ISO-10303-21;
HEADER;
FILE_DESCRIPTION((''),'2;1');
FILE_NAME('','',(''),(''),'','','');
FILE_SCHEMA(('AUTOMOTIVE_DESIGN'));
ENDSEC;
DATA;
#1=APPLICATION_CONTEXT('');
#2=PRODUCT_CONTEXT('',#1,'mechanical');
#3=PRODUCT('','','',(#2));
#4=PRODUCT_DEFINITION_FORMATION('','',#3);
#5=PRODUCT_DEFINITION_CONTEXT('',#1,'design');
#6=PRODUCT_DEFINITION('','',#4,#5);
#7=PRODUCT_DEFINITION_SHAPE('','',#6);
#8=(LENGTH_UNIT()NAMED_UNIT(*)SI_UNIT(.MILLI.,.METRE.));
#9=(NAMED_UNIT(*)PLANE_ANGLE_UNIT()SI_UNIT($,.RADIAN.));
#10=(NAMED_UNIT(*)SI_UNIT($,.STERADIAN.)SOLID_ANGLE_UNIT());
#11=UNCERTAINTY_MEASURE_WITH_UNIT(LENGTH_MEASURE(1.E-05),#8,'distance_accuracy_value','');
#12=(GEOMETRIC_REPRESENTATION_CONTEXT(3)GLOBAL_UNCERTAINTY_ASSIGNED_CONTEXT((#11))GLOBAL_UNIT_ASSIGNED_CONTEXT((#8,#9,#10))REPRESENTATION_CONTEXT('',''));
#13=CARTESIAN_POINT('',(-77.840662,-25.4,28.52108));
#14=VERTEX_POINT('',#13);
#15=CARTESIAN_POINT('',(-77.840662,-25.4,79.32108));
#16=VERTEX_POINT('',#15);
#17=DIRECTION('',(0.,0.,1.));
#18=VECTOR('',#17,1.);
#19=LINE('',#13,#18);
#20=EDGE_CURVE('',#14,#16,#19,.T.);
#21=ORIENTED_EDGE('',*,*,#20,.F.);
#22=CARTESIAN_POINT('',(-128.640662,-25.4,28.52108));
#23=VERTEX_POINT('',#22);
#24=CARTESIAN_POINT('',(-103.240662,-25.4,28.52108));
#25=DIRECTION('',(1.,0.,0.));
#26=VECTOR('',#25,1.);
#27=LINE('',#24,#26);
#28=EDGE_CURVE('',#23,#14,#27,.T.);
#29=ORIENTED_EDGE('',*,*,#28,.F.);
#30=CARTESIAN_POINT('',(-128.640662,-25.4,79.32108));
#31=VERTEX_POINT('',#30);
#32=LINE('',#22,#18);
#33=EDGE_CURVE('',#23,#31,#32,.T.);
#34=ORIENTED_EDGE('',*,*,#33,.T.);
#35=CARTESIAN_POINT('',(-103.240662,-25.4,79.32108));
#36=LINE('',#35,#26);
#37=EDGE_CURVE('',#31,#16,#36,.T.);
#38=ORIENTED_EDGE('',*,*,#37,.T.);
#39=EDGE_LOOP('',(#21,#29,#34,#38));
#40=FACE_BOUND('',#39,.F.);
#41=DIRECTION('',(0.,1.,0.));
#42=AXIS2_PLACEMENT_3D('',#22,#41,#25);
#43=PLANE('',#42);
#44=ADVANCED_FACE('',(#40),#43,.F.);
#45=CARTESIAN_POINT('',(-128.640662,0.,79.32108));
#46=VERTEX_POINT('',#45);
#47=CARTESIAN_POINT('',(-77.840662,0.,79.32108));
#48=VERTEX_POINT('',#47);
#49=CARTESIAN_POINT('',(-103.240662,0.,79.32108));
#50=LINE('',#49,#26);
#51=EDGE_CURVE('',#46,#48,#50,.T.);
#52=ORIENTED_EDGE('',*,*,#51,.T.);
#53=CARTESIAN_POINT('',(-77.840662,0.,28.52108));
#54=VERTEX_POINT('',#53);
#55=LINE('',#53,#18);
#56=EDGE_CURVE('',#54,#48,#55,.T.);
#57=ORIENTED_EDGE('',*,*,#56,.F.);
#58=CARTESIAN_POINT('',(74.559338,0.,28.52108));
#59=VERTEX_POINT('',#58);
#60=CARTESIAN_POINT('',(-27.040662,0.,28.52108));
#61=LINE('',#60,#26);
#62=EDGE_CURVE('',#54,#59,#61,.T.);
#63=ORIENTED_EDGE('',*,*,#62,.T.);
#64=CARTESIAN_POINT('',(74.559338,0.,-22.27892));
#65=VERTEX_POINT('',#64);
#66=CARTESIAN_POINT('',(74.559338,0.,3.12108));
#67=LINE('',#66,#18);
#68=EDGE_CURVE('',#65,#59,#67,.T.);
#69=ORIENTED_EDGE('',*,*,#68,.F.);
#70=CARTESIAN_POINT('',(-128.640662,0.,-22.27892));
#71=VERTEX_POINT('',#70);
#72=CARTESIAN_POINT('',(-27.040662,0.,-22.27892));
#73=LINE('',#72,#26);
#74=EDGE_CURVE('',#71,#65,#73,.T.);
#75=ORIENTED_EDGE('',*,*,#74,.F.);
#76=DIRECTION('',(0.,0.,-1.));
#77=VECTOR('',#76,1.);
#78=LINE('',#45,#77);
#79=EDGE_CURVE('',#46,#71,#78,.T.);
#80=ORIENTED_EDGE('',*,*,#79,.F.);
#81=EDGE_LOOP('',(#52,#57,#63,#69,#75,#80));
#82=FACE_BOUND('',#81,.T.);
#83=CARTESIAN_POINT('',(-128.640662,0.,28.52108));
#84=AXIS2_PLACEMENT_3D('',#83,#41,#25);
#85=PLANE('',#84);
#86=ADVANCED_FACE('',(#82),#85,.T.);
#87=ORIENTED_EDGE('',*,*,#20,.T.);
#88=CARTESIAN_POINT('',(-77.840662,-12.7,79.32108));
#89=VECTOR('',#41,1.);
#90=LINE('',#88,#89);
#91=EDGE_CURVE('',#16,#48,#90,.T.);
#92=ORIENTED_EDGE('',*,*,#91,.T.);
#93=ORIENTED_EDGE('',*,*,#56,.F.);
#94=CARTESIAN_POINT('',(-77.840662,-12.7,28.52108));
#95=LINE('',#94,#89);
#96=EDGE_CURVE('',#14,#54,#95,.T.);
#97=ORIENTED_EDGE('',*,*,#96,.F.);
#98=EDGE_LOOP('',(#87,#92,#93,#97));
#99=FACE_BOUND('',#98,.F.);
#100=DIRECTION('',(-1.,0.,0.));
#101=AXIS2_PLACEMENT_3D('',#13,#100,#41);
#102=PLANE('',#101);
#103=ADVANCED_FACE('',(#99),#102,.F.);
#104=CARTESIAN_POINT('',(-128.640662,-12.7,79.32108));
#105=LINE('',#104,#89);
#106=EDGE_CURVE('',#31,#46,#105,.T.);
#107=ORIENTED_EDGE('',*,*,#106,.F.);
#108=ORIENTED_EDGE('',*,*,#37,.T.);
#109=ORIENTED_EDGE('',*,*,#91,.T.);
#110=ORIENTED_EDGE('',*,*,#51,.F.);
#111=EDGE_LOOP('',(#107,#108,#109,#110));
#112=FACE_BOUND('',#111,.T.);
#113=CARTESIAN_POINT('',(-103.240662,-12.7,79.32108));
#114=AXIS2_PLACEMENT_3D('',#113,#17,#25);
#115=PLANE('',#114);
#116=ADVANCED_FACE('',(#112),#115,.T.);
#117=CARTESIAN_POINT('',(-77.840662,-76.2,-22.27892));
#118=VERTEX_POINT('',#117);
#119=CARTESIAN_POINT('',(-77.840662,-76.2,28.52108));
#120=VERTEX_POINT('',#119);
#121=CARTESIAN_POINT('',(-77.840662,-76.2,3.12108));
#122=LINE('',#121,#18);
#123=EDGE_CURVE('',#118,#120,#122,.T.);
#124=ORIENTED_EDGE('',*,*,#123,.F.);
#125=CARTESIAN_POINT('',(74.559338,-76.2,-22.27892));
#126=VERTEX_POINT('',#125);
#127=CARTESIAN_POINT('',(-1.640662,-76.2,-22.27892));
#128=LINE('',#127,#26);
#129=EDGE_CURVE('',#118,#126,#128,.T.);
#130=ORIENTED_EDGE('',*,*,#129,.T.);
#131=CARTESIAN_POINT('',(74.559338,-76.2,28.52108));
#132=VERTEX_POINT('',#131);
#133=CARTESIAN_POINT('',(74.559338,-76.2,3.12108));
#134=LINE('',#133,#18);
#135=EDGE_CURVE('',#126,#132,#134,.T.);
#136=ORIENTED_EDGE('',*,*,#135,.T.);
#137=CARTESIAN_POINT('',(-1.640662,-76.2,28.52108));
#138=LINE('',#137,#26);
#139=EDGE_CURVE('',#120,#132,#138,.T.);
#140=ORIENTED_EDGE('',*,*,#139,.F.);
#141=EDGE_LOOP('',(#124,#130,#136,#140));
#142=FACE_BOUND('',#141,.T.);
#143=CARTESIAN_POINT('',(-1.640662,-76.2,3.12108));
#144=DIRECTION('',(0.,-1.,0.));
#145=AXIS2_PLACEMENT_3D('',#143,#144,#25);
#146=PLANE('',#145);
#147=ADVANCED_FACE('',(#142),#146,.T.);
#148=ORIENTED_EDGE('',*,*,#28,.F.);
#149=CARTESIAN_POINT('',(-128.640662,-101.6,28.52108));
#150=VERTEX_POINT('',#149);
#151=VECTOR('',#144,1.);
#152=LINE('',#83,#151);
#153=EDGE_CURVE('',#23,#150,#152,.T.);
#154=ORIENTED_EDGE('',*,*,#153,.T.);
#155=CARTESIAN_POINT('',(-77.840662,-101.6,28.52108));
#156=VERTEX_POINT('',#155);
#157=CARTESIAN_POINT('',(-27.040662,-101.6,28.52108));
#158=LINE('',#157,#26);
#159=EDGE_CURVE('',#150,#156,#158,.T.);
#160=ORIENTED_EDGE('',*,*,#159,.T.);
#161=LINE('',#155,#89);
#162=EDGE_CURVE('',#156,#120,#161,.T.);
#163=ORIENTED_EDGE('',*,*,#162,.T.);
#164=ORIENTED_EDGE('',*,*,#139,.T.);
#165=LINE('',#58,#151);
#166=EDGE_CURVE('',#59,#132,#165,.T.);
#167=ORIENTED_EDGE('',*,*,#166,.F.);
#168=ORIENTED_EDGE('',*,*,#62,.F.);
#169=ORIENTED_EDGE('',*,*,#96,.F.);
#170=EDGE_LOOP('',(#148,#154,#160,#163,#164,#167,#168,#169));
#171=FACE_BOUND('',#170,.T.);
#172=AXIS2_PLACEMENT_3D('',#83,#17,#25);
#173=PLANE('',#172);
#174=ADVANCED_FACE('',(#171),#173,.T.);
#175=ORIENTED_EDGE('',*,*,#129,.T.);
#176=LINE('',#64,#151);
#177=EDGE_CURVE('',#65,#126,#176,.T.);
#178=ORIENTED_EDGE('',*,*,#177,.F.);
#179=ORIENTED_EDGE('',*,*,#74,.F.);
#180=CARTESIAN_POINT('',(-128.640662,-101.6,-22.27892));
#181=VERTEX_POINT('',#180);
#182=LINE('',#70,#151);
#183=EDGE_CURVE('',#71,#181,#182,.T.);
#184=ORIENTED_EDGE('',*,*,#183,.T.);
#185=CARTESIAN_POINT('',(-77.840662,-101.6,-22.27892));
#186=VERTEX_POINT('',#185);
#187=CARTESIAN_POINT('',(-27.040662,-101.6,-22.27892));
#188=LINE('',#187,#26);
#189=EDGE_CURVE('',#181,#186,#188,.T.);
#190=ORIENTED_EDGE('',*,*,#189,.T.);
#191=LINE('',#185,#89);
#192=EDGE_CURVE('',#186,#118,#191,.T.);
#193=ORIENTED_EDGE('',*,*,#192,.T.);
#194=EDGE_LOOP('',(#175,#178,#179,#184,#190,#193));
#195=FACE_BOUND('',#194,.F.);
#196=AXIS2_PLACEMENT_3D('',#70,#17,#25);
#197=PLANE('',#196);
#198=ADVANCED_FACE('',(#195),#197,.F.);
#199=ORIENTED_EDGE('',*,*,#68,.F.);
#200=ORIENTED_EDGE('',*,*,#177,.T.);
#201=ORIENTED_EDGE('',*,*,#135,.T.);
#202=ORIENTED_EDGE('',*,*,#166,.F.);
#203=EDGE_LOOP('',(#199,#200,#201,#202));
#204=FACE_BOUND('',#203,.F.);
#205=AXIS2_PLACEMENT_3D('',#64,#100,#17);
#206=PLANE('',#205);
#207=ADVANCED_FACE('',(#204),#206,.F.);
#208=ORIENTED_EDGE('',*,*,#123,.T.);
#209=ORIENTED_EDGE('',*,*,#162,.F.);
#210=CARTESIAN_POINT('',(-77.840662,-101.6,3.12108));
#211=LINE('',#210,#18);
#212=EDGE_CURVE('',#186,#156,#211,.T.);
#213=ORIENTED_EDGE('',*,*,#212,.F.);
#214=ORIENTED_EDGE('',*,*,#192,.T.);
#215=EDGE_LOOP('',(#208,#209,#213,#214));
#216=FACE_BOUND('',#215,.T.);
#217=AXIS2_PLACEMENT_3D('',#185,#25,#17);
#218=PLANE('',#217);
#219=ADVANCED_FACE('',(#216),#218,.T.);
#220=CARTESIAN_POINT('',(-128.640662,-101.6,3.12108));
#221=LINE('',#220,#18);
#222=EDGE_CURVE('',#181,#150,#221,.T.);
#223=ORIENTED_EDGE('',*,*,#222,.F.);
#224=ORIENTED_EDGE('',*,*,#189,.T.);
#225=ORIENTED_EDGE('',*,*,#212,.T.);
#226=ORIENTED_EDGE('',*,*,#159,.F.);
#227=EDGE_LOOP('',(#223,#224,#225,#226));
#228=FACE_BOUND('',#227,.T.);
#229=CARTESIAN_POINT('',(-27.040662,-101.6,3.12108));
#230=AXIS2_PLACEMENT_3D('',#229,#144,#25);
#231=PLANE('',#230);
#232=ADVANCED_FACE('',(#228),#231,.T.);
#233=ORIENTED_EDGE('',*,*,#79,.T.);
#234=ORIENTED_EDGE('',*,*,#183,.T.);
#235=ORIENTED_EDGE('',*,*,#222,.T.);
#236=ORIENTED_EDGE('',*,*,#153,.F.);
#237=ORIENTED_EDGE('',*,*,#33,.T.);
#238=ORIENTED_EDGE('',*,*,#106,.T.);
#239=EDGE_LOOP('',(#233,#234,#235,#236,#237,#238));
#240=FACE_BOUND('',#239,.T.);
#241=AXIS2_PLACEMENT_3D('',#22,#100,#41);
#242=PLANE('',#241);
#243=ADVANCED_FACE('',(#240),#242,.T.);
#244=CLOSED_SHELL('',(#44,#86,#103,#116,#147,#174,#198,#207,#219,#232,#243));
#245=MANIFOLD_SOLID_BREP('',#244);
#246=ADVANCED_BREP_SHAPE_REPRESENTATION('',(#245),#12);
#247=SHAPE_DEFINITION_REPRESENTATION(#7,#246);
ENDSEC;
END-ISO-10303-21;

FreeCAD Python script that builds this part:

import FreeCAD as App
import Part
import Sketcher
Q = App.Units.Quantity

doc = App.newDocument("Part")
body = doc.addObject("PartDesign::Body", "Body")

# Sketch on XZ plane
sketch1 = body.newObject("Sketcher::SketchObject", "Sketch")
sketch1.AttachmentSupport = (doc.getObject("XZ_Plane"), [""])
sketch1.MapMode = "FlatFace"
sketch1.addGeometry(Part.LineSegment(App.Vector(-128.640662, 28.52108, 0), App.Vector(-128.640662, -22.27892, 0)), False)
sketch1.addGeometry(Part.LineSegment(App.Vector(-128.640662, -22.27892, 0), App.Vector(74.559338, -22.27892, 0)), False)
sketch1.addGeometry(Part.LineSegment(App.Vector(74.559338, -22.27892, 0), App.Vector(74.559338, 28.52108, 0)), False)
sketch1.addGeometry(Part.LineSegment(App.Vector(74.559338, 28.52108, 0), App.Vector(-128.640662, 28.52108, 0)), False)
sketch1.addConstraint(Sketcher.Constraint("Coincident", 0, 2, 1, 1))
sketch1.addConstraint(Sketcher.Constraint("Coincident", 1, 2, 2, 1))
sketch1.addConstraint(Sketcher.Constraint("Coincident", 2, 2, 3, 1))
sketch1.addConstraint(Sketcher.Constraint("Coincident", 3, 2, 0, 1))
sketch1.addConstraint(Sketcher.Constraint("Vertical", 0))
sketch1.addConstraint(Sketcher.Constraint("Horizontal", 1))
sketch1.addConstraint(Sketcher.Constraint("Vertical", 2))
sketch1.addConstraint(Sketcher.Constraint("Horizontal", 3))
sketch1.addConstraint(Sketcher.Constraint("DistanceX", 1, 1, 1, 2, Q("8 in")))
sketch1.addConstraint(Sketcher.Constraint("DistanceY", 0, 2, 0, 1, Q("2 in")))
sketch1.addConstraint(Sketcher.Constraint("DistanceX", 0, 2, -1, 1, 128.640662))
sketch1.addConstraint(Sketcher.Constraint("DistanceY", 0, 2, -1, 1, 22.27892))
pad1 = body.newObject("PartDesign::Pad", "Pad")
pad1.Profile = sketch1
pad1.Length = Q("4 in")

# Sketch on XZ plane
sketch2 = body.newObject("Sketcher::SketchObject", "Sketch001")
sketch2.AttachmentSupport = (doc.getObject("XZ_Plane"), [""])
sketch2.MapMode = "FlatFace"
sketch2.AttachmentOffset = App.Placement(App.Vector(0, 0, 4 * 25.4), App.Rotation())
sketch2.addGeometry(Part.LineSegment(App.Vector(-77.840662, 28.52108, 0), App.Vector(-77.840662, -22.27892, 0)), False)
sketch2.addGeometry(Part.LineSegment(App.Vector(-77.840662, -22.27892, 0), App.Vector(74.559338, -22.27892, 0)), False)
sketch2.addGeometry(Part.LineSegment(App.Vector(74.559338, -22.27892, 0), App.Vector(74.559338, 28.52108, 0)), False)
sketch2.addGeometry(Part.LineSegment(App.Vector(74.559338, 28.52108, 0), App.Vector(-77.840662, 28.52108, 0)), False)
sketch2.addConstraint(Sketcher.Constraint("Coincident", 0, 2, 1, 1))
sketch2.addConstraint(Sketcher.Constraint("Coincident", 1, 2, 2, 1))
sketch2.addConstraint(Sketcher.Constraint("Coincident", 2, 2, 3, 1))
sketch2.addConstraint(Sketcher.Constraint("Coincident", 3, 2, 0, 1))
sketch2.addConstraint(Sketcher.Constraint("Vertical", 0))
sketch2.addConstraint(Sketcher.Constraint("Horizontal", 1))
sketch2.addConstraint(Sketcher.Constraint("Vertical", 2))
sketch2.addConstraint(Sketcher.Constraint("Horizontal", 3))
sketch2.addConstraint(Sketcher.Constraint("DistanceX", 1, 1, 1, 2, Q("6 in")))
sketch2.addConstraint(Sketcher.Constraint("DistanceY", 0, 2, 0, 1, Q("2 in")))
sketch2.addConstraint(Sketcher.Constraint("DistanceX", 0, 2, -1, 1, 77.840662))
sketch2.addConstraint(Sketcher.Constraint("DistanceY", 0, 2, -1, 1, 22.27892))
pocket1 = body.newObject("PartDesign::Pocket", "Pocket")
pocket1.Profile = sketch2
pocket1.Length = Q("1 in")

# Sketch on XY plane
sketch3 = body.newObject("Sketcher::SketchObject", "Sketch002")
sketch3.AttachmentSupport = (doc.getObject("XY_Plane"), [""])
sketch3.MapMode = "FlatFace"
sketch3.AttachmentOffset = App.Placement(App.Vector(0, 0, 28.52108), App.Rotation())
sketch3.addGeometry(Part.LineSegment(App.Vector(-128.640662, 0, 0), App.Vector(-128.640662, -25.4, 0)), False)
sketch3.addGeometry(Part.LineSegment(App.Vector(-128.640662, -25.4, 0), App.Vector(-77.840662, -25.4, 0)), False)
sketch3.addGeometry(Part.LineSegment(App.Vector(-77.840662, -25.4, 0), App.Vector(-77.840662, 0, 0)), False)
sketch3.addGeometry(Part.LineSegment(App.Vector(-77.840662, 0, 0), App.Vector(-128.640662, 0, 0)), False)
sketch3.addConstraint(Sketcher.Constraint("Coincident", 0, 2, 1, 1))
sketch3.addConstraint(Sketcher.Constraint("Coincident", 1, 2, 2, 1))
sketch3.addConstraint(Sketcher.Constraint("Coincident", 2, 2, 3, 1))
sketch3.addConstraint(Sketcher.Constraint("Coincident", 3, 2, 0, 1))
sketch3.addConstraint(Sketcher.Constraint("Vertical", 0))
sketch3.addConstraint(Sketcher.Constraint("Horizontal", 1))
sketch3.addConstraint(Sketcher.Constraint("Vertical", 2))
sketch3.addConstraint(Sketcher.Constraint("Horizontal", 3))
sketch3.addConstraint(Sketcher.Constraint("PointOnObject", 2, 2, -1))
sketch3.addConstraint(Sketcher.Constraint("DistanceX", 1, 1, 1, 2, Q("2 in")))
sketch3.addConstraint(Sketcher.Constraint("DistanceY", 0, 2, 0, 1, Q("1 in")))
sketch3.addConstraint(Sketcher.Constraint("DistanceX", 0, 2, -1, 1, 128.640662))
pad2 = body.newObject("PartDesign::Pad", "Pad001")
pad2.Profile = sketch3
pad2.Length = Q("2 in")

doc.recompute()
